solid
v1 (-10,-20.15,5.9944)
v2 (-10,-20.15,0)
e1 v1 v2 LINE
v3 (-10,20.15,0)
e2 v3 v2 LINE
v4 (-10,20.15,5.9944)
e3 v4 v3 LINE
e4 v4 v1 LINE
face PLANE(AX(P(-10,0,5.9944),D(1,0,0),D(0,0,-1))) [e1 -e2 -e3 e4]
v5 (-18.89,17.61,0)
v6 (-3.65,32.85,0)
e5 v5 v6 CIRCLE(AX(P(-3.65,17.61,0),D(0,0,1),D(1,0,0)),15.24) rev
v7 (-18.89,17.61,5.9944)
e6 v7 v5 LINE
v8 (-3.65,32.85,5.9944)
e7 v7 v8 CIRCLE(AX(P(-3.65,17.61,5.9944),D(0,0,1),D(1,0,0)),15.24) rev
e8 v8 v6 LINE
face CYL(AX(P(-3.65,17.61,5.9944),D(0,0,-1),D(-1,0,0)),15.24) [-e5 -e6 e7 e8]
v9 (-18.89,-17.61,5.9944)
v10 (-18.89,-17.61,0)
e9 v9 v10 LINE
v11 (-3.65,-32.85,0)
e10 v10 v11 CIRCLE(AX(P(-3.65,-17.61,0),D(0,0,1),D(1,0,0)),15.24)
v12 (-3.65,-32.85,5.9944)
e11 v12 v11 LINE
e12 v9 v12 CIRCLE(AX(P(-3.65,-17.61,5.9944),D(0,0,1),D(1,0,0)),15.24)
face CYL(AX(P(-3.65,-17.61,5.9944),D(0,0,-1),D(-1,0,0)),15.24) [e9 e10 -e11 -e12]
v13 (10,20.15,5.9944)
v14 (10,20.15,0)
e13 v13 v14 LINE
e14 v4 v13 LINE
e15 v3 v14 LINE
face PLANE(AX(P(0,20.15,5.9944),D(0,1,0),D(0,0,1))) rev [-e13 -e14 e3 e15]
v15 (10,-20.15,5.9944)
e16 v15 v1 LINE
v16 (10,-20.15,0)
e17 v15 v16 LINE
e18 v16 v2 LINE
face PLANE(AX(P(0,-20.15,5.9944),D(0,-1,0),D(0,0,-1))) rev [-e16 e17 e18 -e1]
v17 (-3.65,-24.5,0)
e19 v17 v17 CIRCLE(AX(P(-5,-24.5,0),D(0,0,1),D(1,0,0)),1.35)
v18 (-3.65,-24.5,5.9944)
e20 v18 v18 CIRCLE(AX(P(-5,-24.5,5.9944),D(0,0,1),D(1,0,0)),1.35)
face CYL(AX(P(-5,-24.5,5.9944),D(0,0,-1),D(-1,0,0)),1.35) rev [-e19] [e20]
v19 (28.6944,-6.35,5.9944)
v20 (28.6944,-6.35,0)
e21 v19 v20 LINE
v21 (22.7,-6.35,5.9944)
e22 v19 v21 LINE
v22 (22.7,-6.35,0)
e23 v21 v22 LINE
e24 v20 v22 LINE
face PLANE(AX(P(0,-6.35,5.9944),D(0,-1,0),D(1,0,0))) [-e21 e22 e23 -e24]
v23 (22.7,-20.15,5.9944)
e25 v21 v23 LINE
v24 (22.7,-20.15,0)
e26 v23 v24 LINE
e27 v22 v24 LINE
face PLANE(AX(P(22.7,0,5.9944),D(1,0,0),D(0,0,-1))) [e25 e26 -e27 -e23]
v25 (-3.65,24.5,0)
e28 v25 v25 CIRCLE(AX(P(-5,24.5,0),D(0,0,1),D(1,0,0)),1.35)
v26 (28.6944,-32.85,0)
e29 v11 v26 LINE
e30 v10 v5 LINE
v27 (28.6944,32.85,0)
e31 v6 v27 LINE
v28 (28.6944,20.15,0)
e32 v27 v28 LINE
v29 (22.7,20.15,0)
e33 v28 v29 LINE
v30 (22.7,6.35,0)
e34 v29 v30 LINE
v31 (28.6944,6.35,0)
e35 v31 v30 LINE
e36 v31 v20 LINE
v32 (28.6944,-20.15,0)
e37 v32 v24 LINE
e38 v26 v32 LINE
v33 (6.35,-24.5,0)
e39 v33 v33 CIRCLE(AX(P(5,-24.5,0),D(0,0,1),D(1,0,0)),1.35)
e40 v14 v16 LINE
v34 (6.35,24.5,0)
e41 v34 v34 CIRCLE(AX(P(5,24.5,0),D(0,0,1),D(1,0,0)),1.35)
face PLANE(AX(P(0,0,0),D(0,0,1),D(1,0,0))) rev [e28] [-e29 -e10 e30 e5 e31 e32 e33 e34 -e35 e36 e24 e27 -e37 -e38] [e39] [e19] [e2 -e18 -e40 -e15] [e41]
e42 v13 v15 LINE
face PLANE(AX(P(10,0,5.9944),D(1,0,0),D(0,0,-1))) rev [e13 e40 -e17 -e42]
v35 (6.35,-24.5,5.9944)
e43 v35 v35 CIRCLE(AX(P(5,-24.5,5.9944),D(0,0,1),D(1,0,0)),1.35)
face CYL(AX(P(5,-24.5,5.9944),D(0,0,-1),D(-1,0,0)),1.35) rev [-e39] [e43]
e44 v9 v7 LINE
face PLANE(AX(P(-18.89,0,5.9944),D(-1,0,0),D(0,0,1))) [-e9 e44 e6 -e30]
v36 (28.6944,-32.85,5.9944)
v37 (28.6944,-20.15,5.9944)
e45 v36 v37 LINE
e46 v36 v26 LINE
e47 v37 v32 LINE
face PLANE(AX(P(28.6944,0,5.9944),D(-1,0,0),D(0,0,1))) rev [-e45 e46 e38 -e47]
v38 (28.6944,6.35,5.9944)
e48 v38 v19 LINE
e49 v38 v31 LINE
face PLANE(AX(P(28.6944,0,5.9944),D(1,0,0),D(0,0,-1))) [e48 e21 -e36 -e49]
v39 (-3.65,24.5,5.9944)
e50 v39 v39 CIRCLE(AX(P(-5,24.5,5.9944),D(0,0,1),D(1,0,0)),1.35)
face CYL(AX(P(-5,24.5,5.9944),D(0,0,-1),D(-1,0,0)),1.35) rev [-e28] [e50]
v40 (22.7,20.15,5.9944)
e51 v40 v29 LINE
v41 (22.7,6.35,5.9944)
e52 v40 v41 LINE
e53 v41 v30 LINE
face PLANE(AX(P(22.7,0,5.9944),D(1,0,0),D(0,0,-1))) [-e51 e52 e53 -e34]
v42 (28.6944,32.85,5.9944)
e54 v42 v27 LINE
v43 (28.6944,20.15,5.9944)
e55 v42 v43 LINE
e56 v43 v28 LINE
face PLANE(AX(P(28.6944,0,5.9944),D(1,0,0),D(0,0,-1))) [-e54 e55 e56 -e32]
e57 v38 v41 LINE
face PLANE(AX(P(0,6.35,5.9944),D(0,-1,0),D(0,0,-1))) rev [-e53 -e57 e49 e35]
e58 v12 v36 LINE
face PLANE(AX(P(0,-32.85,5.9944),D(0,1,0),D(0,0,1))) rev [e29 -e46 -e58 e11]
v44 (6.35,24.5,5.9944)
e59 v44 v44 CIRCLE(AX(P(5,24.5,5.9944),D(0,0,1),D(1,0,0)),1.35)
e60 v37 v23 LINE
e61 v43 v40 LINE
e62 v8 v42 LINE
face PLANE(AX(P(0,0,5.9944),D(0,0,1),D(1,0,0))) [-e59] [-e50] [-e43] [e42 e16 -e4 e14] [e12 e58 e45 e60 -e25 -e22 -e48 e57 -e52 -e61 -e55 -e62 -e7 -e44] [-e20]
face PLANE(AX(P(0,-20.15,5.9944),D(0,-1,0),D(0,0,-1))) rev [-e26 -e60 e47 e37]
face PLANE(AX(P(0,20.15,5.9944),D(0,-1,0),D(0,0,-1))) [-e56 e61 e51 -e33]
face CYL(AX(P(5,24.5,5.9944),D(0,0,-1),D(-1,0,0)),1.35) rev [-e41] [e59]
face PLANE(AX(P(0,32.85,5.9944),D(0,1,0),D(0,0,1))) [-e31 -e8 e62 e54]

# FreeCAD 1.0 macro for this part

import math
import FreeCAD as App
import Part
import Sketcher

V = App.Vector


def add_polygon(sketch, points):
    """Adds a closed chain of lines whose ends are joined by coincident constraints."""
    first, n = sketch.GeometryCount, len(points)
    for a, b in zip(points, points[1:] + points[:1]):
        sketch.addGeometry(Part.LineSegment(App.Vector(*a, 0), App.Vector(*b, 0)), False)
    for i in range(n):
        sketch.addConstraint(Sketcher.Constraint("Coincident", first + i, 2, first + (i + 1) % n, 1))

doc = App.newDocument("Part")
body = doc.addObject("PartDesign::Body", "Body")

sketch1 = body.newObject("Sketcher::SketchObject", "Sketch")
sketch1.AttachmentSupport = (doc.getObject("XY_Plane"), [""])
sketch1.MapMode = "FlatFace"
sketch1.addGeometry(Part.ArcOfCircle(Part.Circle(V(-3.65, 17.61, 0), V(0, 0, 1), 15.24), math.radians(90), math.radians(180)), False)
sketch1.addGeometry(Part.LineSegment(V(-18.89, 17.61, 0), V(-18.89, -17.61, 0)), False)
sketch1.addGeometry(Part.ArcOfCircle(Part.Circle(V(-3.65, -17.61, 0), V(0, 0, 1), 15.24), math.radians(-180), math.radians(-90)), False)
sketch1.addGeometry(Part.LineSegment(V(-3.65, -32.85, 0), V(28.6944, -32.85, 0)), False)
sketch1.addGeometry(Part.LineSegment(V(28.6944, -32.85, 0), V(28.6944, -20.15, 0)), False)
sketch1.addGeometry(Part.LineSegment(V(28.6944, -20.15, 0), V(22.7, -20.15, 0)), False)
sketch1.addGeometry(Part.LineSegment(V(22.7, -20.15, 0), V(22.7, -6.35, 0)), False)
sketch1.addGeometry(Part.LineSegment(V(22.7, -6.35, 0), V(28.6944, -6.35, 0)), False)
sketch1.addGeometry(Part.LineSegment(V(28.6944, -6.35, 0), V(28.6944, 6.35, 0)), False)
sketch1.addGeometry(Part.LineSegment(V(28.6944, 6.35, 0), V(22.7, 6.35, 0)), False)
sketch1.addGeometry(Part.LineSegment(V(22.7, 6.35, 0), V(22.7, 20.15, 0)), False)
sketch1.addGeometry(Part.LineSegment(V(22.7, 20.15, 0), V(28.6944, 20.15, 0)), False)
sketch1.addGeometry(Part.LineSegment(V(28.6944, 20.15, 0), V(28.6944, 32.85, 0)), False)
sketch1.addGeometry(Part.LineSegment(V(28.6944, 32.85, 0), V(-3.65, 32.85, 0)), False)
sketch1.addGeometry(Part.Circle(V(5, -24.5, 0), V(0, 0, 1), 1.35), False)
sketch1.addGeometry(Part.Circle(V(-5, -24.5, 0), V(0, 0, 1), 1.35), False)
sketch1.addGeometry(Part.Circle(V(5, 24.5, 0), V(0, 0, 1), 1.35), False)
add_polygon(sketch1, [(-10, -20.15), (-10, 20.15), (10, 20.15), (10, -20.15)])
sketch1.addGeometry(Part.Circle(V(-5, 24.5, 0), V(0, 0, 1), 1.35), False)
sketch1.addConstraint([
    Sketcher.Constraint("Tangent", 0, 2, 1, 1),
    Sketcher.Constraint("Tangent", 1, 2, 2, 1),
    Sketcher.Constraint("Tangent", 2, 2, 3, 1),
    Sketcher.Constraint("Coincident", 3, 2, 4, 1),
    Sketcher.Constraint("Coincident", 4, 2, 5, 1),
    Sketcher.Constraint("Coincident", 5, 2, 6, 1),
    Sketcher.Constraint("Coincident", 6, 2, 7, 1),
    Sketcher.Constraint("Coincident", 7, 2, 8, 1),
    Sketcher.Constraint("Coincident", 8, 2, 9, 1),
    Sketcher.Constraint("Coincident", 9, 2, 10, 1),
    Sketcher.Constraint("Coincident", 10, 2, 11, 1),
    Sketcher.Constraint("Coincident", 11, 2, 12, 1),
    Sketcher.Constraint("Coincident", 12, 2, 13, 1),
    Sketcher.Constraint("Tangent", 13, 2, 0, 1),
    Sketcher.Constraint("Vertical", 1),
    Sketcher.Constraint("Horizontal", 3),
    Sketcher.Constraint("Vertical", 4),
    Sketcher.Constraint("Horizontal", 5),
    Sketcher.Constraint("Vertical", 6),
    Sketcher.Constraint("Horizontal", 7),
    Sketcher.Constraint("Vertical", 8),
    Sketcher.Constraint("Horizontal", 9),
    Sketcher.Constraint("Vertical", 10),
    Sketcher.Constraint("Horizontal", 11),
    Sketcher.Constraint("Vertical", 12),
    Sketcher.Constraint("Horizontal", 13),
    Sketcher.Constraint("Vertical", 17),
    Sketcher.Constraint("Horizontal", 18),
    Sketcher.Constraint("Vertical", 19),
    Sketcher.Constraint("Horizontal", 20),
    Sketcher.Constraint("Equal", 0, 2),
    Sketcher.Constraint("Equal", 14, 15),
    Sketcher.Constraint("Equal", 15, 16),
    Sketcher.Constraint("Equal", 16, 21),
    Sketcher.Constraint("Symmetric", 15, 3, 16, 3, -1, 1),
    Sketcher.Constraint("Symmetric", 14, 3, 21, 3, -1, 1),
    Sketcher.Constraint("Symmetric", 17, 2, 19, 2, -1, 1),
    Sketcher.Constraint("Symmetric", 14, 3, 15, 3, -2),
    Sketcher.Constraint("Symmetric", 6, 2, 9, 2, -1),
    Sketcher.Constraint("Symmetric", 4, 2, 11, 2, -1),
    Sketcher.Constraint("Horizontal", 11, 2, 17, 2),
    Sketcher.Constraint("Vertical", 4, 2, 7, 2),
    Sketcher.Constraint("Equal", 4, 8),
    Sketcher.Constraint("Equal", 8, 12),
    Sketcher.Constraint("Diameter", 14, 2.7),
    Sketcher.Constraint("DistanceX", 18, 1, 18, 2, 20.0),
    Sketcher.Constraint("Radius", 0, 15.24),
    Sketcher.Constraint("DistanceY", 4, 1, 4, 2, 12.7),
    Sketcher.Constraint("DistanceY", 6, 1, 6, 2, 13.8),
    Sketcher.Constraint("DistanceX", -1, 1, 14, 3, 5.0),
    Sketcher.Constraint("DistanceY", 14, 3, 16, 3, 49.0),
    Sketcher.Constraint("DistanceX", -1, 1, 5, 2, 22.7),
    Sketcher.Constraint("DistanceX", 0, 3, -1, 1, 3.65),
    Sketcher.Constraint("DistanceX", 3, 1, 3, 2, 32.3444),
])
pad1 = body.newObject("PartDesign::Pad", "Pad")
pad1.Profile = sketch1
pad1.Length = 5.9944

doc.recompute()
